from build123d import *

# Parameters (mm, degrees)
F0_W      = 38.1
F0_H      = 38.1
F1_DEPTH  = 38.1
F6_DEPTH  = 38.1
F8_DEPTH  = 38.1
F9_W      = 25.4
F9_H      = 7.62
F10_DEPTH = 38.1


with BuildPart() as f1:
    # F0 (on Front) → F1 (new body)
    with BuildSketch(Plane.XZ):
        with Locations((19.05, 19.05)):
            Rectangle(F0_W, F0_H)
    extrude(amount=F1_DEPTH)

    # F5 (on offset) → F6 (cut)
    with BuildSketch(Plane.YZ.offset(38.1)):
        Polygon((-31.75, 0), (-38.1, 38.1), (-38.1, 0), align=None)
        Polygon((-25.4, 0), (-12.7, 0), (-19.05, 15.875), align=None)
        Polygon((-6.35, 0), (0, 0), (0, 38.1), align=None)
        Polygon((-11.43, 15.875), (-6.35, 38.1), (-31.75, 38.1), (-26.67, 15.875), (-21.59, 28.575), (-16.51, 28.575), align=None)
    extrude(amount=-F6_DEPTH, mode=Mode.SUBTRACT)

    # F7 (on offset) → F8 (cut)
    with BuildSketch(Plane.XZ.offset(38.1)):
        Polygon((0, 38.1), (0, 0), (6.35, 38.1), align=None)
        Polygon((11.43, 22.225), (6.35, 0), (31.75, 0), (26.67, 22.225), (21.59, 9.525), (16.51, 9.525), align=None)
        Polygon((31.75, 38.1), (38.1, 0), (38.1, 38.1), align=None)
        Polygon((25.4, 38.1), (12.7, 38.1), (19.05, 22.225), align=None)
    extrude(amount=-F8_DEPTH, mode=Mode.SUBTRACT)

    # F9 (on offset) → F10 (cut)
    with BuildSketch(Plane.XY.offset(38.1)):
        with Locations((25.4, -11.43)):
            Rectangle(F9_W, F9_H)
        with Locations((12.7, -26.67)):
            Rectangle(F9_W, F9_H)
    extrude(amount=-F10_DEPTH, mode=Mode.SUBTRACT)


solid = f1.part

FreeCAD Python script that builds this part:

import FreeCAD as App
import Part
import Sketcher
from FreeCAD import Vector
Q = App.Units.Quantity

doc = App.newDocument("Part")
params = doc.addObject("Spreadsheet::Sheet", "Params")
for row, (alias, value) in enumerate([
    ("sketch1_width", "1.5 in"),
    ("pad1_length", "1.5 in"),
    ("sketch2_width", "1 in"),
    ("sketch2_width2", "0.5 in"),
    ("sketch2_width3", "0.2 in"),
    ("sketch2_height", "1.5 in"),
    ("pocket1_length", "1.5 in"),
    ("sketch3_width", "1 in"),
    ("sketch3_width2", "0.2 in"),
    ("sketch3_width3", "0.5 in"),
    ("sketch3_height", "1.5 in"),
    ("sketch3_width4", "0.25 in"),
    ("pocket2_length", "1.5 in"),
    ("sketch4_width", "1 in"),
    ("sketch4_height", "0.3 in"),
    ("pocket3_length", "1.5 in"),
], start=1):
    params.set(f"A{row}", alias)
    params.set(f"B{row}", "=" + value)
    params.setAlias(f"B{row}", alias)

body = doc.addObject("PartDesign::Body", "Body")

sketch1 = body.newObject("Sketcher::SketchObject", "Sketch")
sketch1.AttachmentSupport = (doc.getObject("XZ_Plane"), [""])
sketch1.MapMode = "FlatFace"
sketch1.addGeometry(Part.LineSegment(Vector(0, 38, 0), Vector(0, 0, 0)), False)
sketch1.addGeometry(Part.LineSegment(Vector(0, 0, 0), Vector(38, 0, 0)), False)
sketch1.addGeometry(Part.LineSegment(Vector(38, 0, 0), Vector(38, 38, 0)), False)
sketch1.addGeometry(Part.LineSegment(Vector(38, 38, 0), Vector(0, 38, 0)), False)
sketch1.addConstraint(Sketcher.Constraint("Coincident", 0, 2, 1, 1))
sketch1.addConstraint(Sketcher.Constraint("Coincident", 1, 2, 2, 1))
sketch1.addConstraint(Sketcher.Constraint("Coincident", 2, 2, 3, 1))
sketch1.addConstraint(Sketcher.Constraint("Coincident", 3, 2, 0, 1))
sketch1.addConstraint(Sketcher.Constraint("Vertical", 0))
sketch1.addConstraint(Sketcher.Constraint("Horizontal", 1))
sketch1.addConstraint(Sketcher.Constraint("Vertical", 2))
sketch1.addConstraint(Sketcher.Constraint("Horizontal", 3))
sketch1.addConstraint(Sketcher.Constraint("Coincident", 0, 2, -1, 1))
sketch1.addConstraint(Sketcher.Constraint("Equal", 3, 0))
sketch1.addConstraint(Sketcher.Constraint("DistanceX", 1, 1, 1, 2, Q("1.5 in")))
sketch1.setExpression("Constraints[10]", "Params.sketch1_width")
pad1 = body.newObject("PartDesign::Pad", "Pad")
pad1.Profile = sketch1
pad1.setExpression("Length", "Params.pad1_length")

sketch2 = body.newObject("Sketcher::SketchObject", "Sketch001")
sketch2.AttachmentSupport = (doc.getObject("YZ_Plane"), [""])
sketch2.MapMode = "FlatFace"
sketch2.AttachmentOffset = App.Placement(Vector(0, 0, 1.5 * 25.4), App.Rotation())
sketch2.addGeometry(Part.LineSegment(Vector(-32, 0, 0), Vector(-38, 38, 0)), False)
sketch2.addGeometry(Part.LineSegment(Vector(-38, 38, 0), Vector(-38, 0, 0)), False)
sketch2.addGeometry(Part.LineSegment(Vector(-38, 0, 0), Vector(-32, 0, 0)), False)
sketch2.addGeometry(Part.LineSegment(Vector(-25, 0, 0), Vector(-13, 0, 0)), False)
sketch2.addGeometry(Part.LineSegment(Vector(-13, 0, 0), Vector(-19, 16, 0)), False)
sketch2.addGeometry(Part.LineSegment(Vector(-19, 16, 0), Vector(-25, 0, 0)), False)
sketch2.addGeometry(Part.LineSegment(Vector(-6, 0, 0), Vector(0, 0, 0)), False)
sketch2.addGeometry(Part.LineSegment(Vector(0, 0, 0), Vector(0, 38, 0)), False)
sketch2.addGeometry(Part.LineSegment(Vector(0, 38, 0), Vector(-6, 0, 0)), False)
sketch2.addGeometry(Part.LineSegment(Vector(-11, 16, 0), Vector(-6, 38, 0)), False)
sketch2.addGeometry(Part.LineSegment(Vector(-6, 38, 0), Vector(-32, 38, 0)), False)
sketch2.addGeometry(Part.LineSegment(Vector(-32, 38, 0), Vector(-27, 16, 0)), False)
sketch2.addGeometry(Part.LineSegment(Vector(-27, 16, 0), Vector(-22, 29, 0)), False)
sketch2.addGeometry(Part.LineSegment(Vector(-22, 29, 0), Vector(-17, 29, 0)), False)
sketch2.addGeometry(Part.LineSegment(Vector(-17, 29, 0), Vector(-11, 16, 0)), False)
sketch2.addConstraint(Sketcher.Constraint("Coincident", 0, 2, 1, 1))
sketch2.addConstraint(Sketcher.Constraint("Coincident", 1, 2, 2, 1))
sketch2.addConstraint(Sketcher.Constraint("Coincident", 2, 2, 0, 1))
sketch2.addConstraint(Sketcher.Constraint("Coincident", 3, 2, 4, 1))
sketch2.addConstraint(Sketcher.Constraint("Coincident", 4, 2, 5, 1))
sketch2.addConstraint(Sketcher.Constraint("Coincident", 5, 2, 3, 1))
sketch2.addConstraint(Sketcher.Constraint("Coincident", 6, 2, 7, 1))
sketch2.addConstraint(Sketcher.Constraint("Coincident", 7, 2, 8, 1))
sketch2.addConstraint(Sketcher.Constraint("Coincident", 8, 2, 6, 1))
sketch2.addConstraint(Sketcher.Constraint("Coincident", 9, 2, 10, 1))
sketch2.addConstraint(Sketcher.Constraint("Coincident", 10, 2, 11, 1))
sketch2.addConstraint(Sketcher.Constraint("Coincident", 11, 2, 12, 1))
sketch2.addConstraint(Sketcher.Constraint("Coincident", 12, 2, 13, 1))
sketch2.addConstraint(Sketcher.Constraint("Coincident", 13, 2, 14, 1))
sketch2.addConstraint(Sketcher.Constraint("Coincident", 14, 2, 9, 1))
sketch2.addConstraint(Sketcher.Constraint("Vertical", 1))
sketch2.addConstraint(Sketcher.Constraint("Horizontal", 2))
sketch2.addConstraint(Sketcher.Constraint("Horizontal", 3))
sketch2.addConstraint(Sketcher.Constraint("Horizontal", 6))
sketch2.addConstraint(Sketcher.Constraint("Vertical", 7))
sketch2.addConstraint(Sketcher.Constraint("Horizontal", 10))
sketch2.addConstraint(Sketcher.Constraint("Horizontal", 13))
sketch2.addConstraint(Sketcher.Constraint("Coincident", 6, 2, -1, 1))
sketch2.addConstraint(Sketcher.Constraint("PointOnObject", 1, 2, -1))
sketch2.addConstraint(Sketcher.Constraint("PointOnObject", 3, 2, -1))
sketch2.addConstraint(Sketcher.Constraint("Parallel", 5, 12))
sketch2.addConstraint(Sketcher.Constraint("Parallel", 4, 14))
sketch2.addConstraint(Sketcher.Constraint("Horizontal", 0, 2, 7, 2))
sketch2.addConstraint(Sketcher.Constraint("Horizontal", 7, 2, 9, 2))
sketch2.addConstraint(Sketcher.Constraint("Horizontal", 4, 2, 11, 2))
sketch2.addConstraint(Sketcher.Constraint("Horizontal", 11, 2, 14, 2))
sketch2.addConstraint(Sketcher.Constraint("Vertical", 8, 2, 9, 2))
sketch2.addConstraint(Sketcher.Constraint("Vertical", 2, 2, 10, 2))
sketch2.addConstraint(Sketcher.Constraint("Equal", 2, 6))
sketch2.addConstraint(Sketcher.Constraint("Equal", 4, 5))
sketch2.addConstraint(Sketcher.Constraint("Equal", 9, 11))
sketch2.addConstraint(Sketcher.Constraint("DistanceX", 10, 2, 10, 1, Q("1 in")))
sketch2.addConstraint(Sketcher.Constraint("DistanceX", 3, 1, 3, 2, Q("0.5 in")))
sketch2.addConstraint(Sketcher.Constraint("DistanceX", 13, 1, 13, 2, Q("0.2 in")))
sketch2.addConstraint(Sketcher.Constraint("DistanceY", 1, 2, 1, 1, Q("1.5 in")))
sketch2.addConstraint(Sketcher.Constraint("DistanceX", 5, 2, -1, 1, Q("1 in")))
sketch2.addConstraint(Sketcher.Constraint("DistanceX", 1, 2, 3, 2, Q("1 in")))
sketch2.addConstraint(Sketcher.Constraint("DistanceX", 11, 2, 4, 2, Q("0.3 in")))
sketch2.addConstraint(Sketcher.Constraint("DistanceY", 4, 2, 12, 2, Q("0.5 in")))
sketch2.setExpression("Constraints[36]", "Params.sketch2_width")
sketch2.setExpression("Constraints[37]", "Params.sketch2_width2")
sketch2.setExpression("Constraints[38]", "Params.sketch2_width3")
sketch2.setExpression("Constraints[39]", "Params.sketch2_height")
pocket1 = body.newObject("PartDesign::Pocket", "Pocket")
pocket1.Profile = sketch2
pocket1.setExpression("Length", "Params.pocket1_length")

sketch3 = body.newObject("Sketcher::SketchObject", "Sketch002")
sketch3.AttachmentSupport = (doc.getObject("XZ_Plane"), [""])
sketch3.MapMode = "FlatFace"
sketch3.AttachmentOffset = App.Placement(Vector(0, 0, 1.5 * 25.4), App.Rotation())
sketch3.addGeometry(Part.LineSegment(Vector(0, 38, 0), Vector(0, 0, 0)), False)
sketch3.addGeometry(Part.LineSegment(Vector(0, 0, 0), Vector(6, 38, 0)), False)
sketch3.addGeometry(Part.LineSegment(Vector(6, 38, 0), Vector(0, 38, 0)), False)
sketch3.addGeometry(Part.LineSegment(Vector(11, 22, 0), Vector(6, 0, 0)), False)
sketch3.addGeometry(Part.LineSegment(Vector(6, 0, 0), Vector(32, 0, 0)), False)
sketch3.addGeometry(Part.LineSegment(Vector(32, 0, 0), Vector(27, 22, 0)), False)
sketch3.addGeometry(Part.LineSegment(Vector(27, 22, 0), Vector(22, 10, 0)), False)
sketch3.addGeometry(Part.LineSegment(Vector(22, 10, 0), Vector(17, 10, 0)), False)
sketch3.addGeometry(Part.LineSegment(Vector(17, 10, 0), Vector(11, 22, 0)), False)
sketch3.addGeometry(Part.LineSegment(Vector(32, 38, 0), Vector(38, 0, 0)), False)
sketch3.addGeometry(Part.LineSegment(Vector(38, 0, 0), Vector(38, 38, 0)), False)
sketch3.addGeometry(Part.LineSegment(Vector(38, 38, 0), Vector(32, 38, 0)), False)
sketch3.addGeometry(Part.LineSegment(Vector(25, 38, 0), Vector(13, 38, 0)), False)
sketch3.addGeometry(Part.LineSegment(Vector(13, 38, 0), Vector(19, 22, 0)), False)
sketch3.addGeometry(Part.LineSegment(Vector(19, 22, 0), Vector(25, 38, 0)), False)
sketch3.addConstraint(Sketcher.Constraint("Coincident", 0, 2, 1, 1))
sketch3.addConstraint(Sketcher.Constraint("Coincident", 1, 2, 2, 1))
sketch3.addConstraint(Sketcher.Constraint("Coincident", 2, 2, 0, 1))
sketch3.addConstraint(Sketcher.Constraint("Coincident", 3, 2, 4, 1))
sketch3.addConstraint(Sketcher.Constraint("Coincident", 4, 2, 5, 1))
sketch3.addConstraint(Sketcher.Constraint("Coincident", 5, 2, 6, 1))
sketch3.addConstraint(Sketcher.Constraint("Coincident", 6, 2, 7, 1))
sketch3.addConstraint(Sketcher.Constraint("Coincident", 7, 2, 8, 1))
sketch3.addConstraint(Sketcher.Constraint("Coincident", 8, 2, 3, 1))
sketch3.addConstraint(Sketcher.Constraint("Coincident", 9, 2, 10, 1))
sketch3.addConstraint(Sketcher.Constraint("Coincident", 10, 2, 11, 1))
sketch3.addConstraint(Sketcher.Constraint("Coincident", 11, 2, 9, 1))
sketch3.addConstraint(Sketcher.Constraint("Coincident", 12, 2, 13, 1))
sketch3.addConstraint(Sketcher.Constraint("Coincident", 13, 2, 14, 1))
sketch3.addConstraint(Sketcher.Constraint("Coincident", 14, 2, 12, 1))
sketch3.addConstraint(Sketcher.Constraint("Vertical", 0))
sketch3.addConstraint(Sketcher.Constraint("Horizontal", 2))
sketch3.addConstraint(Sketcher.Constraint("Horizontal", 4))
sketch3.addConstraint(Sketcher.Constraint("Horizontal", 7))
sketch3.addConstraint(Sketcher.Constraint("Vertical", 10))
sketch3.addConstraint(Sketcher.Constraint("Horizontal", 11))
sketch3.addConstraint(Sketcher.Constraint("Horizontal", 12))
sketch3.addConstraint(Sketcher.Constraint("Coincident", 0, 2, -1, 1))
sketch3.addConstraint(Sketcher.Constraint("PointOnObject", 3, 2, -1))
sketch3.addConstraint(Sketcher.Constraint("PointOnObject", 9, 2, -1))
sketch3.addConstraint(Sketcher.Constraint("Parallel", 8, 13))
sketch3.addConstraint(Sketcher.Constraint("Parallel", 6, 14))
sketch3.addConstraint(Sketcher.Constraint("Horizontal", 5, 2, 8, 2))
sketch3.addConstraint(Sketcher.Constraint("Horizontal", 2, 2, 10, 2))
sketch3.addConstraint(Sketcher.Constraint("Horizontal", 11, 2, 12, 2))
sketch3.addConstraint(Sketcher.Constraint("Horizontal", 8, 2, 13, 2))
sketch3.addConstraint(Sketcher.Constraint("Vertical", 1, 2, 3, 2))
sketch3.addConstraint(Sketcher.Constraint("Vertical", 4, 2, 11, 2))
sketch3.addConstraint(Sketcher.Constraint("Equal", 2, 11))
sketch3.addConstraint(Sketcher.Constraint("Equal", 3, 5))
sketch3.addConstraint(Sketcher.Constraint("Equal", 6, 8))
sketch3.addConstraint(Sketcher.Constraint("DistanceX", 4, 1, 4, 2, Q("1 in")))
sketch3.addConstraint(Sketcher.Constraint("DistanceX", 7, 2, 7, 1, Q("0.2 in")))
sketch3.addConstraint(Sketcher.Constraint("DistanceX", 12, 2, 12, 1, Q("0.5 in")))
sketch3.addConstraint(Sketcher.Constraint("DistanceY", 0, 2, 0, 1, Q("1.5 in")))
sketch3.addConstraint(Sketcher.Constraint("DistanceX", -1, 1, 14, 2, Q("1 in")))
sketch3.addConstraint(Sketcher.Constraint("DistanceX", 2, 2, 2, 1, Q("0.25 in")))
sketch3.addConstraint(Sketcher.Constraint("DistanceX", 5, 2, 4, 2, Q("0.2 in")))
sketch3.addConstraint(Sketcher.Constraint("DistanceY", 6, 2, 5, 2, Q("0.5 in")))
sketch3.setExpression("Constraints[36]", "Params.sketch3_width")
sketch3.setExpression("Constraints[37]", "Params.sketch3_width2")
sketch3.setExpression("Constraints[38]", "Params.sketch3_width3")
sketch3.setExpression("Constraints[39]", "Params.sketch3_height")
sketch3.setExpression("Constraints[41]", "Params.sketch3_width4")
pocket2 = body.newObject("PartDesign::Pocket", "Pocket001")
pocket2.Profile = sketch3
pocket2.setExpression("Length", "Params.pocket2_length")

sketch4 = body.newObject("Sketcher::SketchObject", "Sketch003")
sketch4.AttachmentSupport = (doc.getObject("XY_Plane"), [""])
sketch4.MapMode = "FlatFace"
sketch4.AttachmentOffset = App.Placement(Vector(0, 0, 1.5 * 25.4), App.Rotation())
sketch4.addGeometry(Part.LineSegment(Vector(13, -8, 0), Vector(13, -15, 0)), False)
sketch4.addGeometry(Part.LineSegment(Vector(13, -15, 0), Vector(38, -15, 0)), False)
sketch4.addGeometry(Part.LineSegment(Vector(38, -15, 0), Vector(38, -8, 0)), False)
sketch4.addGeometry(Part.LineSegment(Vector(38, -8, 0), Vector(13, -8, 0)), False)
sketch4.addGeometry(Part.LineSegment(Vector(0, -23, 0), Vector(0, -30, 0)), False)
sketch4.addGeometry(Part.LineSegment(Vector(0, -30, 0), Vector(25, -30, 0)), False)
sketch4.addGeometry(Part.LineSegment(Vector(25, -30, 0), Vector(25, -23, 0)), False)
sketch4.addGeometry(Part.LineSegment(Vector(25, -23, 0), Vector(0, -23, 0)), False)
sketch4.addConstraint(Sketcher.Constraint("Coincident", 0, 2, 1, 1))
sketch4.addConstraint(Sketcher.Constraint("Coincident", 1, 2, 2, 1))
sketch4.addConstraint(Sketcher.Constraint("Coincident", 2, 2, 3, 1))
sketch4.addConstraint(Sketcher.Constraint("Coincident", 3, 2, 0, 1))
sketch4.addConstraint(Sketcher.Constraint("Coincident", 4, 2, 5, 1))
sketch4.addConstraint(Sketcher.Constraint("Coincident", 5, 2, 6, 1))
sketch4.addConstraint(Sketcher.Constraint("Coincident", 6, 2, 7, 1))
sketch4.addConstraint(Sketcher.Constraint("Coincident", 7, 2, 4, 1))
sketch4.addConstraint(Sketcher.Constraint("Vertical", 0))
sketch4.addConstraint(Sketcher.Constraint("Horizontal", 1))
sketch4.addConstraint(Sketcher.Constraint("Vertical", 2))
sketch4.addConstraint(Sketcher.Constraint("Horizontal", 3))
sketch4.addConstraint(Sketcher.Constraint("Vertical", 4))
sketch4.addConstraint(Sketcher.Constraint("Horizontal", 5))
sketch4.addConstraint(Sketcher.Constraint("Vertical", 6))
sketch4.addConstraint(Sketcher.Constraint("Horizontal", 7))
sketch4.addConstraint(Sketcher.Constraint("PointOnObject", 4, 2, -2))
sketch4.addConstraint(Sketcher.Constraint("Equal", 3, 5))
sketch4.addConstraint(Sketcher.Constraint("Equal", 2, 4))
sketch4.addConstraint(Sketcher.Constraint("DistanceX", 1, 1, 1, 2, Q("1 in")))
sketch4.addConstraint(Sketcher.Constraint("DistanceY", 0, 2, 0, 1, Q("0.3 in")))
sketch4.addConstraint(Sketcher.Constraint("DistanceX", -1, 1, 0, 2, Q("0.5 in")))
sketch4.addConstraint(Sketcher.Constraint("DistanceY", 0, 2, -1, 1, Q("0.6 in")))
sketch4.addConstraint(Sketcher.Constraint("DistanceY", 4, 2, -1, 1, Q("1.2 in")))
sketch4.setExpression("Constraints[19]", "Params.sketch4_width")
sketch4.setExpression("Constraints[20]", "Params.sketch4_height")
pocket3 = body.newObject("PartDesign::Pocket", "Pocket002")
pocket3.Profile = sketch4
pocket3.setExpression("Length", "Params.pocket3_length")

doc.recompute()
